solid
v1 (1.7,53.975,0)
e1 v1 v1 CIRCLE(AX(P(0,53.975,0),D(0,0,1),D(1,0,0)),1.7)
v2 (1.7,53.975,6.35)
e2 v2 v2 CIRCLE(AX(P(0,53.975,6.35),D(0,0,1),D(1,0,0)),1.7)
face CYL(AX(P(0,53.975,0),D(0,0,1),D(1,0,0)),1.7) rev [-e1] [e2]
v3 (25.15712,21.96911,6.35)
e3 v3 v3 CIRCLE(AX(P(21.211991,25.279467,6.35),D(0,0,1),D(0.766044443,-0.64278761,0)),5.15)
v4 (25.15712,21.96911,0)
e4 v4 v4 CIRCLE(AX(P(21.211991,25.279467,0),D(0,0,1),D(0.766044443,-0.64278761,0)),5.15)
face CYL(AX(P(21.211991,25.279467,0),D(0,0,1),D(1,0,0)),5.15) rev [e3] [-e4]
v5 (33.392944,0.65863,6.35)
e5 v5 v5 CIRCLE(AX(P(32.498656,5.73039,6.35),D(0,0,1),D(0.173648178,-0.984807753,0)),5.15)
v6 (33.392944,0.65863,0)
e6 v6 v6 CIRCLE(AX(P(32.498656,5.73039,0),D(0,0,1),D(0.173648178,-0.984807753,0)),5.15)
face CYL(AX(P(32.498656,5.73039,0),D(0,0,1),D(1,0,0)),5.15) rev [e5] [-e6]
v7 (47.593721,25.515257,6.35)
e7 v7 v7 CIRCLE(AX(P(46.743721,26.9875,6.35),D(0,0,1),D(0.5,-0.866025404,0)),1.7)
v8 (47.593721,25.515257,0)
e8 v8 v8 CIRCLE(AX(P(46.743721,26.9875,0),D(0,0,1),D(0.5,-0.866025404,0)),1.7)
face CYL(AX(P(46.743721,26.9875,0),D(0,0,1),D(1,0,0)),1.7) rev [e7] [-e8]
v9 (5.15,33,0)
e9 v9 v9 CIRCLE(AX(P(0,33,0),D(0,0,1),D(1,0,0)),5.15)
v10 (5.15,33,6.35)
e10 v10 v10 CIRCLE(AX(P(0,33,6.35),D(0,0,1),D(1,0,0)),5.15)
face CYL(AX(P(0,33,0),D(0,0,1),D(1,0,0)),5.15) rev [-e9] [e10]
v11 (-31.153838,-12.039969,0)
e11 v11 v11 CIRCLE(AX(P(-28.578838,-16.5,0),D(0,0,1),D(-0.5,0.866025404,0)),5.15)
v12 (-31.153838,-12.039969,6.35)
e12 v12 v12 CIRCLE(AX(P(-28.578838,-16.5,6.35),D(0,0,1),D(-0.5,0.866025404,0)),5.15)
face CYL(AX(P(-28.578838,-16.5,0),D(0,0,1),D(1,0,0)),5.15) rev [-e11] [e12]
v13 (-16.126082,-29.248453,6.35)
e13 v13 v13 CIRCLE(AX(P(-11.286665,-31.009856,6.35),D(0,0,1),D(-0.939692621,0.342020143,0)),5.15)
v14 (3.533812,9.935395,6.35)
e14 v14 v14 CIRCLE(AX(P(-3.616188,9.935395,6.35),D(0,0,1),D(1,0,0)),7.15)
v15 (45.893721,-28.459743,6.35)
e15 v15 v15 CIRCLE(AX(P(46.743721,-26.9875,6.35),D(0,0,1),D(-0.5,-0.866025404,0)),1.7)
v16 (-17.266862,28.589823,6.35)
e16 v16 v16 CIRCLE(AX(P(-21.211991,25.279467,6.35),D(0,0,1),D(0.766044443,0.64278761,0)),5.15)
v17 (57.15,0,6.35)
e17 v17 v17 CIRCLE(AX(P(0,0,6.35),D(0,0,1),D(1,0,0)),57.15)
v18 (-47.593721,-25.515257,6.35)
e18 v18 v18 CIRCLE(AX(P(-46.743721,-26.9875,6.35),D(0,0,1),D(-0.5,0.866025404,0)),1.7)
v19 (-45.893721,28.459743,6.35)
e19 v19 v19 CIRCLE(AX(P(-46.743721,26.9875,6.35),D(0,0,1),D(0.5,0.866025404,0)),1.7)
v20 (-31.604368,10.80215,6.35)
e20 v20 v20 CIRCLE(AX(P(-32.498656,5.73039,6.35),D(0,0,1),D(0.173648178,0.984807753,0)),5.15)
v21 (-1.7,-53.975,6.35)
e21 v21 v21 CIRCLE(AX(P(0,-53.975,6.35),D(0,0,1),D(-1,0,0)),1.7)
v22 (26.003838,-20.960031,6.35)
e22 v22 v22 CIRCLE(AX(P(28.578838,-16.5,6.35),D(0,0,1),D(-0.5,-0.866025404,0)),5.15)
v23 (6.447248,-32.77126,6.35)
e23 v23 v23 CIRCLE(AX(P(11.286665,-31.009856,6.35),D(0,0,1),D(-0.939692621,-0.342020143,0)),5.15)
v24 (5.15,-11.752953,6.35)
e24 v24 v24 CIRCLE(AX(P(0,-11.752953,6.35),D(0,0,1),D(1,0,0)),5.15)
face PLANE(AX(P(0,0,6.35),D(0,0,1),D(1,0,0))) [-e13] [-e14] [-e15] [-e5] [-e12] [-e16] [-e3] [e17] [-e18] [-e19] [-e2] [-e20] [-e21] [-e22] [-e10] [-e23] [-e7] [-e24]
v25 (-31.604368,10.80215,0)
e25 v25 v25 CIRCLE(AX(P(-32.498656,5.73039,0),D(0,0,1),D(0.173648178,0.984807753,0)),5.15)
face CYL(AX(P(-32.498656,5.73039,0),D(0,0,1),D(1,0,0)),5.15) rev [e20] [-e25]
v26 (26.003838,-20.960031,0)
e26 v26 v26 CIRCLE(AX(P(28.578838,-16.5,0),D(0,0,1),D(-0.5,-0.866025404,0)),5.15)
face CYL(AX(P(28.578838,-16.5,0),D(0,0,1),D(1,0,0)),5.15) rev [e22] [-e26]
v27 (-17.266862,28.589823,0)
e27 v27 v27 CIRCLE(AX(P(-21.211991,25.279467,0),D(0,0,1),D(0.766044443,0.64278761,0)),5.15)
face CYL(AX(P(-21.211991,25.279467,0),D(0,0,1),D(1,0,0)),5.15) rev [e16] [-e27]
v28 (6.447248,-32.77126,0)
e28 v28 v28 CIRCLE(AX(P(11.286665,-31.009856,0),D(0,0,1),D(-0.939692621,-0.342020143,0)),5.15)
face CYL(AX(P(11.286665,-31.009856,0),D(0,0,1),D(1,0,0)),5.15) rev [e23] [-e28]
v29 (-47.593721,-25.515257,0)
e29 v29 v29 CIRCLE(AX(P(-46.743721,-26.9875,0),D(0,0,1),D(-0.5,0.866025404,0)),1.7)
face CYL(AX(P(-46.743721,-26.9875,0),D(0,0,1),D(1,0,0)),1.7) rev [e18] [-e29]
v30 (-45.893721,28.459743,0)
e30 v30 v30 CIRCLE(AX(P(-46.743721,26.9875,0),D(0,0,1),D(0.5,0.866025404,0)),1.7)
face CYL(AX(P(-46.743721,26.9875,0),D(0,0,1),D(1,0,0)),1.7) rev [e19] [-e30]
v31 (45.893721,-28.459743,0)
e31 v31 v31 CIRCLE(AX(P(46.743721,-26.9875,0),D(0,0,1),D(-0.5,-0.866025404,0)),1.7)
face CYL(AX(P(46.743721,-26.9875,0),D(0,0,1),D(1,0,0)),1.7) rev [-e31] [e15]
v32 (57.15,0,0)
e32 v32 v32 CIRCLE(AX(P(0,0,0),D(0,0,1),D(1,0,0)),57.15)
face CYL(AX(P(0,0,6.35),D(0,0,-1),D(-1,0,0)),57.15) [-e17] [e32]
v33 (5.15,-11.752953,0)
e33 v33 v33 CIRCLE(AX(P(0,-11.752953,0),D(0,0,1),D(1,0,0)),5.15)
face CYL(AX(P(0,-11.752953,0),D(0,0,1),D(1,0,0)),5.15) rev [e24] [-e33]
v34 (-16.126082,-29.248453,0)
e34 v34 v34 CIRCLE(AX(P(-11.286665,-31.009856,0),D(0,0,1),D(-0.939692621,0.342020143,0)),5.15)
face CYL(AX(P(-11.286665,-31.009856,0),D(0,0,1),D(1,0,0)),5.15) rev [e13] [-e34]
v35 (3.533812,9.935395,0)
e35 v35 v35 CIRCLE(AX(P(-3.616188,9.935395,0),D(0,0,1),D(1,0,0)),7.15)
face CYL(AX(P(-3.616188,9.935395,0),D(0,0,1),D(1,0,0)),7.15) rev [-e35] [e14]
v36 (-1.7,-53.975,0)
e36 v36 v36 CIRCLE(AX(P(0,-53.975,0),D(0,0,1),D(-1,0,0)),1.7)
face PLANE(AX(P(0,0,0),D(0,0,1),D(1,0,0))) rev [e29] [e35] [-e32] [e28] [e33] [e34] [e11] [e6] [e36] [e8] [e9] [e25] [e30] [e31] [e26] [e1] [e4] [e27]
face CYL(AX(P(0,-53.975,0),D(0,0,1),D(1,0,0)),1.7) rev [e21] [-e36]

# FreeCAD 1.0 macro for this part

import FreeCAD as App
import Part
import Sketcher

doc = App.newDocument("Part")
params = doc.addObject("Spreadsheet::Sheet", "Params")
for row, (alias, value) in enumerate([
    ("sketch1_diameter", "114.3 mm"),
    ("pad1_length", "6.35 mm"),
    ("sketch2_diameter", "10.3 mm"),
    ("sketch3_diameter", "3.4 mm"),
    ("sketch4_diameter", "14.3 mm"),
    ("sketch4_diameter2", "10.3 mm"),
], start=1):
    params.set(f"A{row}", alias)
    params.set(f"B{row}", "=" + value)
    params.setAlias(f"B{row}", alias)

body = doc.addObject("PartDesign::Body", "Body")

sketch1 = body.newObject("Sketcher::SketchObject", "Sketch")
sketch1.AttachmentSupport = (doc.getObject("XY_Plane"), [""])
sketch1.MapMode = "FlatFace"
sketch1.addGeometry(Part.Circle(App.Vector(0, 0, 0), App.Vector(0, 0, 1), 57), False)
sketch1.addConstraint([
    Sketcher.Constraint("Coincident", 0, 3, -1, 1),
    Sketcher.Constraint("Diameter", 0, 114.3),
])
sketch1.setExpression("Constraints[1]", "Params.sketch1_diameter")
pad1 = body.newObject("PartDesign::Pad", "Pad")
pad1.Profile = sketch1
pad1.setExpression("Length", "Params.pad1_length")

sketch2 = body.newObject("Sketcher::SketchObject", "Sketch001")
sketch2.AttachmentSupport = (doc.getObject("XY_Plane"), [""])
sketch2.MapMode = "FlatFace"
sketch2.AttachmentOffset = App.Placement(App.Vector(0, 0, 6.35), App.Rotation())
sketch2.addGeometry(Part.Circle(App.Vector(0, 33, 0), App.Vector(0, 0, 1), 5), False)
sketch2.addConstraint([
    Sketcher.Constraint("PointOnObject", 0, 3, -2),
    Sketcher.Constraint("Diameter", 0, 10.3),
    Sketcher.Constraint("DistanceY", -1, 1, 0, 3, 33.0),
])
sketch2.setExpression("Constraints[1]", "Params.sketch2_diameter")
pocket1 = body.newObject("PartDesign::Pocket", "Pocket")
pocket1.Profile = sketch2
pocket1.Type = "ThroughAll"
doc.recompute()

polarpattern = body.newObject("PartDesign::PolarPattern", "PolarPattern")
polarpattern.Originals = [pocket1]
polarpattern.Axis = (doc.getObject("Z_Axis"), [""])
polarpattern.Angle = 360
polarpattern.Occurrences = 9
body.Tip = polarpattern

sketch3 = body.newObject("Sketcher::SketchObject", "Sketch002")
sketch3.AttachmentSupport = (doc.getObject("XY_Plane"), [""])
sketch3.MapMode = "FlatFace"
sketch3.AttachmentOffset = App.Placement(App.Vector(0, 0, 6.35), App.Rotation())
sketch3.addGeometry(Part.Circle(App.Vector(0, 54, 0), App.Vector(0, 0, 1), 1.7), False)
sketch3.addConstraint([
    Sketcher.Constraint("PointOnObject", 0, 3, -2),
    Sketcher.Constraint("Diameter", 0, 3.4),
    Sketcher.Constraint("DistanceY", -1, 1, 0, 3, 53.975),
])
sketch3.setExpression("Constraints[1]", "Params.sketch3_diameter")
pocket2 = body.newObject("PartDesign::Pocket", "Pocket001")
pocket2.Profile = sketch3
pocket2.Type = "ThroughAll"
doc.recompute()

polarpattern2 = body.newObject("PartDesign::PolarPattern", "PolarPattern001")
polarpattern2.Originals = [pocket2]
polarpattern2.Axis = (doc.getObject("Z_Axis"), [""])
polarpattern2.Angle = 360
polarpattern2.Occurrences = 6
body.Tip = polarpattern2

sketch4 = body.newObject("Sketcher::SketchObject", "Sketch003")
sketch4.AttachmentSupport = (doc.getObject("XY_Plane"), [""])
sketch4.MapMode = "FlatFace"
sketch4.AttachmentOffset = App.Placement(App.Vector(0, 0, 6.35), App.Rotation())
sketch4.addGeometry([
    Part.Circle(App.Vector(-4, 10, 0), App.Vector(0, 0, 1), 7),
    Part.Circle(App.Vector(0, -12, 0), App.Vector(0, 0, 1), 5),
], False)
sketch4.addConstraint([
    Sketcher.Constraint("PointOnObject", 1, 3, -2),
    Sketcher.Constraint("Diameter", 0, 14.3),
    Sketcher.Constraint("Diameter", 1, 10.3),
    Sketcher.Constraint("DistanceX", 0, 3, -1, 1, 3.616188),
    Sketcher.Constraint("DistanceY", -1, 1, 0, 3, 9.935395),
    Sketcher.Constraint("DistanceY", 1, 3, -1, 1, 11.752953),
])
sketch4.setExpression("Constraints[1]", "Params.sketch4_diameter")
sketch4.setExpression("Constraints[2]", "Params.sketch4_diameter2")
pocket3 = body.newObject("PartDesign::Pocket", "Pocket002")
pocket3.Profile = sketch4
pocket3.Type = "ThroughAll"

doc.recompute()
